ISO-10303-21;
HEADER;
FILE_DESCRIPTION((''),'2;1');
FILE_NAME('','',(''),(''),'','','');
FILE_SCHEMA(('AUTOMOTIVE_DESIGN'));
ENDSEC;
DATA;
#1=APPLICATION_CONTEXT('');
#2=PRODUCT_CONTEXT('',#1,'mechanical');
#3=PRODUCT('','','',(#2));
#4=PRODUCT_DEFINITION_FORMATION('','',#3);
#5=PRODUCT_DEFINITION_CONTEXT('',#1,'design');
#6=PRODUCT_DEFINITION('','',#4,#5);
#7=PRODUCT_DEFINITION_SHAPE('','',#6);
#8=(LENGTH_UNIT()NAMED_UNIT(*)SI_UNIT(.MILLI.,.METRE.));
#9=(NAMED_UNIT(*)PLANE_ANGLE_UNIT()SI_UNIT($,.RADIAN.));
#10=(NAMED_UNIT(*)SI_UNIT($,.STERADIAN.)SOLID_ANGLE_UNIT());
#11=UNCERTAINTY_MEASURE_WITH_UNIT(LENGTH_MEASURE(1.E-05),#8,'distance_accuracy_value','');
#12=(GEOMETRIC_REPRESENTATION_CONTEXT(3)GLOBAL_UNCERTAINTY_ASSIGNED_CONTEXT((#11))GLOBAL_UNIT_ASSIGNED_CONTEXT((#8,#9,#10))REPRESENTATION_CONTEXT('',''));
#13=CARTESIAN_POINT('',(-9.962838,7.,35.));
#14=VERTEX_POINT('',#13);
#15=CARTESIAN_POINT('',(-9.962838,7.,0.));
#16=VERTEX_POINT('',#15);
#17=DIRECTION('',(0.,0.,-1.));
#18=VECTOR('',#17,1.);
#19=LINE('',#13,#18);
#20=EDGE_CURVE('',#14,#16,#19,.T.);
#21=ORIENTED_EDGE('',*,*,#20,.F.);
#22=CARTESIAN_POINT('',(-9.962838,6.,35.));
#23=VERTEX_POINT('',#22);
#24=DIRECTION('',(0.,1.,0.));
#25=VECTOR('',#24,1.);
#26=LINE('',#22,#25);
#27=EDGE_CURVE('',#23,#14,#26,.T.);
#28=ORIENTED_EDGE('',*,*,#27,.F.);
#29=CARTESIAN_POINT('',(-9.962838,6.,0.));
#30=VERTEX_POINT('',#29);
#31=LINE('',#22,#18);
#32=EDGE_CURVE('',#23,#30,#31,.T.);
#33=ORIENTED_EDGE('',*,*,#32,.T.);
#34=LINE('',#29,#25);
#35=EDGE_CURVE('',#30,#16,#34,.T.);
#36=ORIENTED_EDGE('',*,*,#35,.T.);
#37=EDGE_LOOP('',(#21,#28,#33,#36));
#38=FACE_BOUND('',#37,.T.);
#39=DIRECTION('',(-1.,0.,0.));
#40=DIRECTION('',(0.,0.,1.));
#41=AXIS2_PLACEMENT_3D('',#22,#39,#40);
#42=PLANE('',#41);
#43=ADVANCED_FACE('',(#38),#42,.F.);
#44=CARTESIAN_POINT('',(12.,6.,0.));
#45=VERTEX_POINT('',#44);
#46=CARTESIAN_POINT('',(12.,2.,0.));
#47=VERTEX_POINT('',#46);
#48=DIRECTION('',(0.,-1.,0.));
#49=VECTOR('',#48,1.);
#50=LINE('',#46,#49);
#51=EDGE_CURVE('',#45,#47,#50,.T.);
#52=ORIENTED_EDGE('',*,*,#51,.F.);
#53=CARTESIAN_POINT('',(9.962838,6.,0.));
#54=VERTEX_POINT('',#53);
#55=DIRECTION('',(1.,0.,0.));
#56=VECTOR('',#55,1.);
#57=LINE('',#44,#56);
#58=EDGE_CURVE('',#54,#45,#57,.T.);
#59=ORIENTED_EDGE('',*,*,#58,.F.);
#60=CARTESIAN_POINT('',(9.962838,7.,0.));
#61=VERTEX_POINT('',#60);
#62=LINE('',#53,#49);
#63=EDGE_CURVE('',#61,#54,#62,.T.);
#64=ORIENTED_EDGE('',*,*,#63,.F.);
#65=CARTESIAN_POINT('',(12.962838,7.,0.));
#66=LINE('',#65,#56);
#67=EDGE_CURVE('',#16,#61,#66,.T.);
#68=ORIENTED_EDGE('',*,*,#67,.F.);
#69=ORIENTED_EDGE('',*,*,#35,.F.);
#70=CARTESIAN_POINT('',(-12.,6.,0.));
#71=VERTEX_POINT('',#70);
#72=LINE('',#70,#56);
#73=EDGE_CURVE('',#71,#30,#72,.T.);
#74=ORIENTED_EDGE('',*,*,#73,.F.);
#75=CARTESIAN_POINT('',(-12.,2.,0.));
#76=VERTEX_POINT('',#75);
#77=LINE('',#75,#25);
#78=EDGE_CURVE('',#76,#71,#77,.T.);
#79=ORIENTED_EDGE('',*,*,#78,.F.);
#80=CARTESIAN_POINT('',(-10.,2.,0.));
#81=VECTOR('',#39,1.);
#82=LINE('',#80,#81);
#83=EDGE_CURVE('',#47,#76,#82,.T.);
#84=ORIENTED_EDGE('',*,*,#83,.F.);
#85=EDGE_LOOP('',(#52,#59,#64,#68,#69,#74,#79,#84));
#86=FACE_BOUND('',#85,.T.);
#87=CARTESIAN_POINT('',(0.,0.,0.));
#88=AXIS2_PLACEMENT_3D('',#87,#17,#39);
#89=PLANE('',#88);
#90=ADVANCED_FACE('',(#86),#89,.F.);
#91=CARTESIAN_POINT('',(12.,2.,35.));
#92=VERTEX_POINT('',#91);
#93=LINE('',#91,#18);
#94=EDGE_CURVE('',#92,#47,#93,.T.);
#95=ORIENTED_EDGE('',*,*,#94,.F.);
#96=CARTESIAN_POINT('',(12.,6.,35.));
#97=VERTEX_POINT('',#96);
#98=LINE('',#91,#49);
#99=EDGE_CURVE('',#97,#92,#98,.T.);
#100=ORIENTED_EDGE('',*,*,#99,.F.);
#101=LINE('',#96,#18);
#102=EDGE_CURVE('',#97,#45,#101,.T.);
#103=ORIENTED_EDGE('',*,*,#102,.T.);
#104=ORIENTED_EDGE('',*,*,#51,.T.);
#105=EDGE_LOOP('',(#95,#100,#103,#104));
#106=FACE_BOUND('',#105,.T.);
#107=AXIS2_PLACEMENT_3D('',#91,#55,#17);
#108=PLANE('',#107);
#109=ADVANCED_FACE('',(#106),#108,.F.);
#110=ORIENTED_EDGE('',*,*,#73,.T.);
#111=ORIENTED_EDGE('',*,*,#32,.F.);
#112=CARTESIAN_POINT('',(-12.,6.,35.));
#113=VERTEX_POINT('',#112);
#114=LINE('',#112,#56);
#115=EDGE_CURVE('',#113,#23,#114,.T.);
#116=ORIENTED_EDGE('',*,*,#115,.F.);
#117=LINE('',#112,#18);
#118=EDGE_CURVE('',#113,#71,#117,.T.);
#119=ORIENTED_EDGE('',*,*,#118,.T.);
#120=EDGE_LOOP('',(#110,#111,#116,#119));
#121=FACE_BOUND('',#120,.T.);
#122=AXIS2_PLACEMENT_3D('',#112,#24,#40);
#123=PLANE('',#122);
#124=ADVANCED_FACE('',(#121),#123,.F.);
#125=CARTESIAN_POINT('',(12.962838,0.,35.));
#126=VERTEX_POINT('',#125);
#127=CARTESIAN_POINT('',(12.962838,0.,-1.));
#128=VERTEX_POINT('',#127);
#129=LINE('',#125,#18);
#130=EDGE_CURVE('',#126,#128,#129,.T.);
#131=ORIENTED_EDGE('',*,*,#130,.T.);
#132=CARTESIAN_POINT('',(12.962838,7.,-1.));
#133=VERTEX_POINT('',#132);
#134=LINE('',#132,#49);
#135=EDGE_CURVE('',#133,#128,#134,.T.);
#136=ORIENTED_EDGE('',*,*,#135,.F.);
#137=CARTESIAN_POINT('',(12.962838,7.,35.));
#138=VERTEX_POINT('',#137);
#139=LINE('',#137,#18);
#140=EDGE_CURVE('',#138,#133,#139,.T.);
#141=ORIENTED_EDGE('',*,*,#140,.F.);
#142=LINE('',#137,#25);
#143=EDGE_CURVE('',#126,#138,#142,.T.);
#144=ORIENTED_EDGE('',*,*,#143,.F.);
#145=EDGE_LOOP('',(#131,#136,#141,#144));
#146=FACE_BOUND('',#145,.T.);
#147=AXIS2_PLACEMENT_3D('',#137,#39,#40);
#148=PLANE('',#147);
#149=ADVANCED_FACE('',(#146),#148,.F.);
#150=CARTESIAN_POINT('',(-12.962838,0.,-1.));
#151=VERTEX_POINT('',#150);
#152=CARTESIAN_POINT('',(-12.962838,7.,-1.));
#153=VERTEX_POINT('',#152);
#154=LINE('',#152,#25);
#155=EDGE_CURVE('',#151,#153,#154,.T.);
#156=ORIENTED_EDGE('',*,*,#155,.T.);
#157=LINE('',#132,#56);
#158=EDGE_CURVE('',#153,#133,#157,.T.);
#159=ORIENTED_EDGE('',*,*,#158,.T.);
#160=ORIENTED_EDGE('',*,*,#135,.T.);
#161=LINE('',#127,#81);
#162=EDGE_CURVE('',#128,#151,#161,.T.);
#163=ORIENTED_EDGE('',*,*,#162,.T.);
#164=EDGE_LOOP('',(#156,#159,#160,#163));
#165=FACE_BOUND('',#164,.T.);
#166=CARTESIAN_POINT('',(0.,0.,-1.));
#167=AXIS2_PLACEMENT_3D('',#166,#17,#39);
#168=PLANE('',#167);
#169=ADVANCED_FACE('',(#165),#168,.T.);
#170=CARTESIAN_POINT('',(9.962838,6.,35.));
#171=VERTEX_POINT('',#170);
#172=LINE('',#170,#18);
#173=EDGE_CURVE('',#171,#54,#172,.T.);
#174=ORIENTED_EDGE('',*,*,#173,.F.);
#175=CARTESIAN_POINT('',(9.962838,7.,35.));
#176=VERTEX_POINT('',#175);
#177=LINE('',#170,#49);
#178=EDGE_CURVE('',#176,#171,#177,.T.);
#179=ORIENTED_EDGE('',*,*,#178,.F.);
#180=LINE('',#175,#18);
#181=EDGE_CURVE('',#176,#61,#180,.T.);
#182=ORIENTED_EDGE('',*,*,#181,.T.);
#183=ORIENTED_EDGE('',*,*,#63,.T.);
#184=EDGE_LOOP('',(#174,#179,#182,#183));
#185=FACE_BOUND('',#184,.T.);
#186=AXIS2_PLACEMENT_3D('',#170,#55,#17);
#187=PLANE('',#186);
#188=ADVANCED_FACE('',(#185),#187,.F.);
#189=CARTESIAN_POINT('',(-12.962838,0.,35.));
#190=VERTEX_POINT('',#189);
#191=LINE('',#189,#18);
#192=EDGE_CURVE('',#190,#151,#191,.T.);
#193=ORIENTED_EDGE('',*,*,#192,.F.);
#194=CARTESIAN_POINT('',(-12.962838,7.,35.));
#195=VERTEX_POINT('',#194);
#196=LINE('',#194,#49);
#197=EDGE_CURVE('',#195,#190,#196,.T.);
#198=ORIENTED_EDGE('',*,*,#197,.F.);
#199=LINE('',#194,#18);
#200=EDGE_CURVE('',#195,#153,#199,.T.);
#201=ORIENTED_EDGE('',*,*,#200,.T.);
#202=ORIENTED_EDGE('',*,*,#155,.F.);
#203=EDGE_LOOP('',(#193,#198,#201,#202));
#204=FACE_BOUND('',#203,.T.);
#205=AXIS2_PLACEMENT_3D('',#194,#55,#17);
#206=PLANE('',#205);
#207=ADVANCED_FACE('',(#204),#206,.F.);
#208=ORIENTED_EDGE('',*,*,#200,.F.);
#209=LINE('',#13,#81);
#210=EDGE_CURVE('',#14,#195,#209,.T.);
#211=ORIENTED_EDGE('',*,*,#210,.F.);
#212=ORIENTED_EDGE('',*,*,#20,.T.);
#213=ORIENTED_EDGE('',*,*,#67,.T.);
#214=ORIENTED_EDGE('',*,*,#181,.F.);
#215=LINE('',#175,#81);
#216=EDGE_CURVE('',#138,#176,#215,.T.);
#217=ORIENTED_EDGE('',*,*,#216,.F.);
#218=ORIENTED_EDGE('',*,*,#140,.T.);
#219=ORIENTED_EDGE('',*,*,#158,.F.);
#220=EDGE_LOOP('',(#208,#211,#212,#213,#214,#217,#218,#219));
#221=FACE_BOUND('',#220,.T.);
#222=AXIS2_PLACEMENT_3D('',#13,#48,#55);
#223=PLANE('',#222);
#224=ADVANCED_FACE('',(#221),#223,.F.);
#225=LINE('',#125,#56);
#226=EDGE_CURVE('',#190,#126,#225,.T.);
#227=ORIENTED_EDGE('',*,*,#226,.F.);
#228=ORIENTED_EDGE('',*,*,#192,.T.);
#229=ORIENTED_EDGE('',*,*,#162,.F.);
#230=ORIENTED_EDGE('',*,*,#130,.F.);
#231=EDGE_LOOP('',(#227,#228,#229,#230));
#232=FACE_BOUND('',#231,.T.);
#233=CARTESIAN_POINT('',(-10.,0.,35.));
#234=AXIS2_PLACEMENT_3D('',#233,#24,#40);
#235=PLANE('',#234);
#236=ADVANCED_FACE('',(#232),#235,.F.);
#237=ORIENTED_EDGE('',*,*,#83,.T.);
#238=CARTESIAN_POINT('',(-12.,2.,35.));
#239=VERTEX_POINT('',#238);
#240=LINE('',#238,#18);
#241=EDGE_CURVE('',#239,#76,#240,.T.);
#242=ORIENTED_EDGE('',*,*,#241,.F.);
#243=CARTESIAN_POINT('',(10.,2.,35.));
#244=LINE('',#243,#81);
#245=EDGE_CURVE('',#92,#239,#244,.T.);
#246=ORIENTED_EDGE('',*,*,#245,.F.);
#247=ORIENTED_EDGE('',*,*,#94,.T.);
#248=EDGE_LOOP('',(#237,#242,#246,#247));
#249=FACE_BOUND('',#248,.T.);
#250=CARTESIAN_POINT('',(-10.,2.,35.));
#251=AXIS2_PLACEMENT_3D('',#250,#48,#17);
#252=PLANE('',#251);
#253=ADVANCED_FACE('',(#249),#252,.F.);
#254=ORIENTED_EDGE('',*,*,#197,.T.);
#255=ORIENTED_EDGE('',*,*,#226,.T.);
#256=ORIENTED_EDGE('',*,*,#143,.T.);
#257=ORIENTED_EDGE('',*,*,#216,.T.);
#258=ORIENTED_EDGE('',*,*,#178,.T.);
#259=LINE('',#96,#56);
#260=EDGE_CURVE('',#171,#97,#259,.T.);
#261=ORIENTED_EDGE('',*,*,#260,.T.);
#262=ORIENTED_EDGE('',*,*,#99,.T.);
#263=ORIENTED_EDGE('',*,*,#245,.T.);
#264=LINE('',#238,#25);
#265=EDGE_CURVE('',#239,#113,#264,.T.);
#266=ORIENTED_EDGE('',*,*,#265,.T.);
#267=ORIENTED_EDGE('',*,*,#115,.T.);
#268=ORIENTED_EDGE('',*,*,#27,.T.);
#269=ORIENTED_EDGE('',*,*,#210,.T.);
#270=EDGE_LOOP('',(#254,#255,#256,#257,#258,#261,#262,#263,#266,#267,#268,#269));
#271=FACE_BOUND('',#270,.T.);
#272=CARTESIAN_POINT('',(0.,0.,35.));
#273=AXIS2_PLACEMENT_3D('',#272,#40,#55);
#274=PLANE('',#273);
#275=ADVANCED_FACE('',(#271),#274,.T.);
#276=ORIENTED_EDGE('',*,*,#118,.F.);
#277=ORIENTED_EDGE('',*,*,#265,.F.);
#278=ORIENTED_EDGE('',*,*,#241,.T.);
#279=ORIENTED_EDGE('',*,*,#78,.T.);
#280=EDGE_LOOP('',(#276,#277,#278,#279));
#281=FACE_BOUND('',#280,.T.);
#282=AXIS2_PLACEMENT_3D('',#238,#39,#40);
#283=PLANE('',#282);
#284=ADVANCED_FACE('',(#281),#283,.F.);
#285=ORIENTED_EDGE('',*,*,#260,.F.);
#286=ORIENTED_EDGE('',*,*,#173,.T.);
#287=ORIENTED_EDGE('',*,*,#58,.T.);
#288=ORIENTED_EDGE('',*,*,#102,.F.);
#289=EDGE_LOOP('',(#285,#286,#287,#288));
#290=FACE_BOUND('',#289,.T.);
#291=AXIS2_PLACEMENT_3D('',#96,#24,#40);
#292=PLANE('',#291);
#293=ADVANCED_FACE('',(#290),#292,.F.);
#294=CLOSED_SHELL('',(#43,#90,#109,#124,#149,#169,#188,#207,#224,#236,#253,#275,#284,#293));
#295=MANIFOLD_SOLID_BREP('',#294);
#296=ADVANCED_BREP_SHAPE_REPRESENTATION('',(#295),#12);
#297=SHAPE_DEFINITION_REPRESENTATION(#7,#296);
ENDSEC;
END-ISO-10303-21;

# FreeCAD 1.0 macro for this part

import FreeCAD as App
import Part
import Sketcher
from FreeCAD import Vector
Q = App.Units.Quantity


def add_polygon(sketch, points):
    """Adds a closed chain of lines whose ends are joined by coincident constraints."""
    first, n = sketch.GeometryCount, len(points)
    for a, b in zip(points, points[1:] + points[:1]):
        sketch.addGeometry(Part.LineSegment(App.Vector(*a, 0), App.Vector(*b, 0)), False)
    for i in range(n):
        sketch.addConstraint(Sketcher.Constraint("Coincident", first + i, 2, first + (i + 1) % n, 1))

doc = App.newDocument("Part")
body = doc.addObject("PartDesign::Body", "Body")

sketch1 = body.newObject("Sketcher::SketchObject", "Sketch")
sketch1.AttachmentSupport = (doc.getObject("XY_Plane"), [""])
sketch1.MapMode = "FlatFace"
add_polygon(sketch1, [(13, 0), (13, 7), (10, 7), (10, 6), (12, 6), (12, 2), (-12, 2), (-12, 6), (-10, 6), (-10, 7), (-13, 7), (-13, 0)])
sketch1.addConstraint([
    Sketcher.Constraint("Vertical", 0),
    Sketcher.Constraint("Horizontal", 1),
    Sketcher.Constraint("Vertical", 2),
    Sketcher.Constraint("Horizontal", 3),
    Sketcher.Constraint("Vertical", 4),
    Sketcher.Constraint("Horizontal", 5),
    Sketcher.Constraint("Vertical", 6),
    Sketcher.Constraint("Horizontal", 7),
    Sketcher.Constraint("Vertical", 8),
    Sketcher.Constraint("Horizontal", 9),
    Sketcher.Constraint("Vertical", 10),
    Sketcher.Constraint("Horizontal", 11),
    Sketcher.Constraint("Symmetric", 10, 2, 11, 2, -1, 1),
    Sketcher.Constraint("Symmetric", 3, 2, 6, 2, -2),
    Sketcher.Constraint("Symmetric", 1, 2, 8, 2, -2),
    Sketcher.Constraint("DistanceX", 1, 2, 1, 1, Q("3 mm")),
    Sketcher.Constraint("DistanceX", 5, 2, 5, 1, Q("24 mm")),
    Sketcher.Constraint("DistanceY", 0, 1, 0, 2, Q("7 mm")),
    Sketcher.Constraint("DistanceY", 2, 2, 2, 1, Q("1 mm")),
    Sketcher.Constraint("DistanceY", 4, 2, 4, 1, Q("4 mm")),
    Sketcher.Constraint("DistanceX", 3, 1, 3, 2, Q("2.037162 mm")),
])
pad1 = body.newObject("PartDesign::Pad", "Pad")
pad1.Profile = sketch1
pad1.Length = 35

sketch2 = body.newObject("Sketcher::SketchObject", "Sketch001")
sketch2.AttachmentSupport = (doc.getObject("XY_Plane"), [""])
sketch2.MapMode = "FlatFace"
add_polygon(sketch2, [(13, 7), (13, 0), (-13, 0), (-13, 7)])
sketch2.addConstraint([
    Sketcher.Constraint("Vertical", 0),
    Sketcher.Constraint("Horizontal", 1),
    Sketcher.Constraint("Vertical", 2),
    Sketcher.Constraint("Horizontal", 3),
    Sketcher.Constraint("Symmetric", 0, 2, 1, 2, -1, 1),
    Sketcher.Constraint("DistanceY", 0, 2, 0, 1, Q("7 mm")),
    Sketcher.Constraint("DistanceX", 1, 2, 1, 1, Q("25.925676 mm")),
])
pad2 = body.newObject("PartDesign::Pad", "Pad001")
pad2.Profile = sketch2
pad2.Length = 1
pad2.Reversed = True

doc.recompute()
